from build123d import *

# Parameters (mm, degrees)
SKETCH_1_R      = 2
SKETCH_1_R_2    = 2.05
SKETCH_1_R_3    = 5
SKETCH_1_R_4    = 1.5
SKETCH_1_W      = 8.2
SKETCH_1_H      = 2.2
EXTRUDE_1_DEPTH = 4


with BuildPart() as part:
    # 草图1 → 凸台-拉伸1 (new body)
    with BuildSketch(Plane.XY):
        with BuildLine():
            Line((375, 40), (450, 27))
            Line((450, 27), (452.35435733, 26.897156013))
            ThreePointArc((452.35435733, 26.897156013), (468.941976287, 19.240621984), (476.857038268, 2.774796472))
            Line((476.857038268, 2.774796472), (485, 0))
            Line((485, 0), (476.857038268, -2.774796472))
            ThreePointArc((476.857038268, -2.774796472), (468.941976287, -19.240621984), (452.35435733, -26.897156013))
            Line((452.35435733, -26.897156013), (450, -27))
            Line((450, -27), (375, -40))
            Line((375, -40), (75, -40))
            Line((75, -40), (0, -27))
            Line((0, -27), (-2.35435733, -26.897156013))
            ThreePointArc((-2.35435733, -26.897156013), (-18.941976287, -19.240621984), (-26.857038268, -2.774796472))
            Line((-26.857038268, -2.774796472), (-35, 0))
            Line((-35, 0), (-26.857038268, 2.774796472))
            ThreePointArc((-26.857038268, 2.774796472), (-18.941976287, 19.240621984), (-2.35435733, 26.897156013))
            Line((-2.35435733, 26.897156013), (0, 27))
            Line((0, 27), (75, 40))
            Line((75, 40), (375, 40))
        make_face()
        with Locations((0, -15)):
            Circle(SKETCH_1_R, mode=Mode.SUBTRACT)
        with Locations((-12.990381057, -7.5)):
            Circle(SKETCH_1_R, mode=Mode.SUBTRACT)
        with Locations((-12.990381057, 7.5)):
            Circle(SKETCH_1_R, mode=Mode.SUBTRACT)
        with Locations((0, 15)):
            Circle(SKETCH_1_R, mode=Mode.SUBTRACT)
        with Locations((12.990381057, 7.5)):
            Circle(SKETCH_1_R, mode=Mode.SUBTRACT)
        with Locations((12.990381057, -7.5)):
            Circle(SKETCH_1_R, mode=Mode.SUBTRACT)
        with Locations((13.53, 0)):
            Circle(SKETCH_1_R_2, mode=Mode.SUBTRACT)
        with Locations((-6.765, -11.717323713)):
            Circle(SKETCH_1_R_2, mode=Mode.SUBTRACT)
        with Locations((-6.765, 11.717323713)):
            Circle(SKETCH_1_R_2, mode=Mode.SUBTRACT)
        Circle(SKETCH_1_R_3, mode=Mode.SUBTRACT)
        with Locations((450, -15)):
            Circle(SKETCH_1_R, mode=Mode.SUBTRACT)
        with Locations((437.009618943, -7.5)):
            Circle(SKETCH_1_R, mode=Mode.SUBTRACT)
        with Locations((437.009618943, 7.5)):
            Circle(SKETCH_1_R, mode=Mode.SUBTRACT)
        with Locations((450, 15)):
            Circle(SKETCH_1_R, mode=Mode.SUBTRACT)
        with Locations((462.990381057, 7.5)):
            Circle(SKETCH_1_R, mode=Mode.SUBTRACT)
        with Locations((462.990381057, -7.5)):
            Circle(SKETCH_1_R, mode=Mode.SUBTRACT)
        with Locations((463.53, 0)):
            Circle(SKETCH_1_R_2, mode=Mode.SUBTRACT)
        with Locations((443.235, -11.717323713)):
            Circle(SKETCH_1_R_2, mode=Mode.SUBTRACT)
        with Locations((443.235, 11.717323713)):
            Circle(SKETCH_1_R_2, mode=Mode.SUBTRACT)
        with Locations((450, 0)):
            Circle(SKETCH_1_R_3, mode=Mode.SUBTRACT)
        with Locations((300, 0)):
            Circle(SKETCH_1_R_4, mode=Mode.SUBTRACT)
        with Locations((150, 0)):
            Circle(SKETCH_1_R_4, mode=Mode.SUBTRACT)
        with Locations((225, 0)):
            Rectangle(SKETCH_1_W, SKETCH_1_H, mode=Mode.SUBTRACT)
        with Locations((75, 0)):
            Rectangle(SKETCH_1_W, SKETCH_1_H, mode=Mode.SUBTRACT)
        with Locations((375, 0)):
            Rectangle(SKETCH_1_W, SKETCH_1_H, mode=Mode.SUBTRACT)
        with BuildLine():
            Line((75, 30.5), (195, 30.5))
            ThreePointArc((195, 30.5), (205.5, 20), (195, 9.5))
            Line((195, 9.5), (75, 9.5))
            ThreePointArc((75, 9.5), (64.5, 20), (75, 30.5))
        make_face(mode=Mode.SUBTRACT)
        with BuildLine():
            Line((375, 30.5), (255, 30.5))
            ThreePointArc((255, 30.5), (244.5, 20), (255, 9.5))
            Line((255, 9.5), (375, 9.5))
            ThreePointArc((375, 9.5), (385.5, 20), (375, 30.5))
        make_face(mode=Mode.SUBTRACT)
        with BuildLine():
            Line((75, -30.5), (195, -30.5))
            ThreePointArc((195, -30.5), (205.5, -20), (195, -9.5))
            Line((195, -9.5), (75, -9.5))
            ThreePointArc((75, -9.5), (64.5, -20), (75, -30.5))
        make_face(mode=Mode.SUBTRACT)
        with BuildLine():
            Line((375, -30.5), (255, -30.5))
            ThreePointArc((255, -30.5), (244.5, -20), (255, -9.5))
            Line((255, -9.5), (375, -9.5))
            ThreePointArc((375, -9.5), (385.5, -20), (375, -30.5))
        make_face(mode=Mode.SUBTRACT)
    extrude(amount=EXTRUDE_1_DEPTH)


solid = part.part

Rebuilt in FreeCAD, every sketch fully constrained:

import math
import FreeCAD as App
import Part
import Sketcher
Q = App.Units.Quantity


def add_polygon(sketch, points):
    """Adds a closed chain of lines whose ends are joined by coincident constraints."""
    first, n = sketch.GeometryCount, len(points)
    for a, b in zip(points, points[1:] + points[:1]):
        sketch.addGeometry(Part.LineSegment(App.Vector(*a, 0), App.Vector(*b, 0)), False)
    for i in range(n):
        sketch.addConstraint(Sketcher.Constraint("Coincident", first + i, 2, first + (i + 1) % n, 1))

doc = App.newDocument("Part")
body = doc.addObject("PartDesign::Body", "Body")

# Sketch on XY plane
sketch1 = body.newObject("Sketcher::SketchObject", "Sketch")
sketch1.AttachmentSupport = (doc.getObject("XY_Plane"), [""])
sketch1.MapMode = "FlatFace"
sketch1.addGeometry(Part.LineSegment(App.Vector(450, 27, 0), App.Vector(375, 40, 0)), False)  # 0
sketch1.addGeometry(Part.LineSegment(App.Vector(375, 40, 0), App.Vector(75, 40, 0)), False)  # 1
sketch1.addGeometry(Part.LineSegment(App.Vector(75, 40, 0), App.Vector(0, 27, 0)), False)  # 2
sketch1.addGeometry(Part.LineSegment(App.Vector(0, 27, 0), App.Vector(-2.4, 26.9, 0)), False)  # 3
sketch1.addGeometry(Part.ArcOfCircle(Part.Circle(App.Vector(0, 0, 0), App.Vector(0, 0, 1), 27), math.radians(95), math.radians(174)), False)  # 4
sketch1.addGeometry(Part.LineSegment(App.Vector(-26.9, 2.8, 0), App.Vector(-35, 0, 0)), False)  # 5
sketch1.addGeometry(Part.LineSegment(App.Vector(-35, 0, 0), App.Vector(-26.9, -2.8, 0)), False)  # 6
sketch1.addGeometry(Part.ArcOfCircle(Part.Circle(App.Vector(0, 0, 0), App.Vector(0, 0, 1), 27), math.radians(-174), math.radians(-95)), False)  # 7
sketch1.addGeometry(Part.LineSegment(App.Vector(-2.4, -26.9, 0), App.Vector(0, -27, 0)), False)  # 8
sketch1.addGeometry(Part.LineSegment(App.Vector(0, -27, 0), App.Vector(75, -40, 0)), False)  # 9
sketch1.addGeometry(Part.LineSegment(App.Vector(75, -40, 0), App.Vector(375, -40, 0)), False)  # 10
sketch1.addGeometry(Part.LineSegment(App.Vector(375, -40, 0), App.Vector(450, -27, 0)), False)  # 11
sketch1.addGeometry(Part.LineSegment(App.Vector(450, -27, 0), App.Vector(452.4, -26.9, 0)), False)  # 12
sketch1.addGeometry(Part.ArcOfCircle(Part.Circle(App.Vector(450, 0, 0), App.Vector(0, 0, 1), 27), math.radians(-85), math.radians(-6)), False)  # 13
sketch1.addGeometry(Part.LineSegment(App.Vector(476.9, -2.8, 0), App.Vector(485, 0, 0)), False)  # 14
sketch1.addGeometry(Part.LineSegment(App.Vector(485, 0, 0), App.Vector(476.9, 2.8, 0)), False)  # 15
sketch1.addGeometry(Part.ArcOfCircle(Part.Circle(App.Vector(450, 0, 0), App.Vector(0, 0, 1), 27), math.radians(6), math.radians(85)), False)  # 16
sketch1.addGeometry(Part.LineSegment(App.Vector(452.4, 26.9, 0), App.Vector(450, 27, 0)), False)  # 17
sketch1.addGeometry(Part.LineSegment(App.Vector(375, -30.5, 0), App.Vector(255, -30.5, 0)), False)  # 18
sketch1.addGeometry(Part.ArcOfCircle(Part.Circle(App.Vector(255, -20, 0), App.Vector(0, 0, 1), 10.5), math.radians(90), math.radians(270)), False)  # 19
sketch1.addGeometry(Part.LineSegment(App.Vector(255, -9.5, 0), App.Vector(375, -9.5, 0)), False)  # 20
sketch1.addGeometry(Part.ArcOfCircle(Part.Circle(App.Vector(375, -20, 0), App.Vector(0, 0, 1), 10.5), math.radians(-90), math.radians(90)), False)  # 21
sketch1.addGeometry(Part.Circle(App.Vector(450, -15, 0), App.Vector(0, 0, 1), 2), False)  # 22
sketch1.addGeometry(Part.Circle(App.Vector(443.2, -11.7, 0), App.Vector(0, 0, 1), 2), False)  # 23
sketch1.addGeometry(Part.Circle(App.Vector(463, -7.5, 0), App.Vector(0, 0, 1), 2), False)  # 24
sketch1.addGeometry(Part.Circle(App.Vector(437, -7.5, 0), App.Vector(0, 0, 1), 2), False)  # 25
sketch1.addGeometry(Part.ArcOfCircle(Part.Circle(App.Vector(75, -20, 0), App.Vector(0, 0, 1), 10.5), math.radians(90), math.radians(270)), False)  # 26
sketch1.addGeometry(Part.LineSegment(App.Vector(75, -9.5, 0), App.Vector(195, -9.5, 0)), False)  # 27
sketch1.addGeometry(Part.ArcOfCircle(Part.Circle(App.Vector(195, -20, 0), App.Vector(0, 0, 1), 10.5), math.radians(-90), math.radians(90)), False)  # 28
sketch1.addGeometry(Part.LineSegment(App.Vector(195, -30.5, 0), App.Vector(75, -30.5, 0)), False)  # 29
sketch1.addGeometry(Part.Circle(App.Vector(0, -15, 0), App.Vector(0, 0, 1), 2), False)  # 30
sketch1.addGeometry(Part.Circle(App.Vector(-6.8, -11.7, 0), App.Vector(0, 0, 1), 2), False)  # 31
sketch1.addGeometry(Part.Circle(App.Vector(13, -7.5, 0), App.Vector(0, 0, 1), 2), False)  # 32
sketch1.addGeometry(Part.Circle(App.Vector(-13, -7.5, 0), App.Vector(0, 0, 1), 2), False)  # 33
sketch1.addGeometry(Part.Circle(App.Vector(463.5, 0, 0), App.Vector(0, 0, 1), 2), False)  # 34
sketch1.addGeometry(Part.Circle(App.Vector(450, 0, 0), App.Vector(0, 0, 1), 5), False)  # 35
sketch1.addGeometry(Part.Circle(App.Vector(463, 7.5, 0), App.Vector(0, 0, 1), 2), False)  # 36
sketch1.addGeometry(Part.Circle(App.Vector(437, 7.5, 0), App.Vector(0, 0, 1), 2), False)  # 37
add_polygon(sketch1, [(370.9, -1.1), (370.9, 1.1), (379.1, 1.1), (379.1, -1.1)])  # lines 38-41
sketch1.addGeometry(Part.Circle(App.Vector(443.2, 11.7, 0), App.Vector(0, 0, 1), 2), False)  # 42
sketch1.addGeometry(Part.Circle(App.Vector(450, 15, 0), App.Vector(0, 0, 1), 2), False)  # 43
sketch1.addGeometry(Part.Circle(App.Vector(300, 0, 0), App.Vector(0, 0, 1), 1.5), False)  # 44
sketch1.addGeometry(Part.ArcOfCircle(Part.Circle(App.Vector(375, 20, 0), App.Vector(0, 0, 1), 10.5), math.radians(-90), math.radians(90)), False)  # 45
sketch1.addGeometry(Part.LineSegment(App.Vector(375, 9.5, 0), App.Vector(255, 9.5, 0)), False)  # 46
sketch1.addGeometry(Part.ArcOfCircle(Part.Circle(App.Vector(255, 20, 0), App.Vector(0, 0, 1), 10.5), math.radians(90), math.radians(270)), False)  # 47
sketch1.addGeometry(Part.LineSegment(App.Vector(255, 30.5, 0), App.Vector(375, 30.5, 0)), False)  # 48
add_polygon(sketch1, [(220.9, -1.1), (220.9, 1.1), (229.1, 1.1), (229.1, -1.1)])  # lines 49-52
sketch1.addGeometry(Part.Circle(App.Vector(150, 0, 0), App.Vector(0, 0, 1), 1.5), False)  # 53
add_polygon(sketch1, [(70.9, -1.1), (70.9, 1.1), (79.1, 1.1), (79.1, -1.1)])  # lines 54-57
sketch1.addGeometry(Part.Circle(App.Vector(13.5, 0, 0), App.Vector(0, 0, 1), 2), False)  # 58
sketch1.addGeometry(Part.Circle(App.Vector(0, 0, 0), App.Vector(0, 0, 1), 5), False)  # 59
sketch1.addGeometry(Part.Circle(App.Vector(13, 7.5, 0), App.Vector(0, 0, 1), 2), False)  # 60
sketch1.addGeometry(Part.Circle(App.Vector(-13, 7.5, 0), App.Vector(0, 0, 1), 2), False)  # 61
sketch1.addGeometry(Part.Circle(App.Vector(-6.8, 11.7, 0), App.Vector(0, 0, 1), 2), False)  # 62
sketch1.addGeometry(Part.Circle(App.Vector(0, 15, 0), App.Vector(0, 0, 1), 2), False)  # 63
sketch1.addGeometry(Part.LineSegment(App.Vector(75, 30.5, 0), App.Vector(195, 30.5, 0)), False)  # 64
sketch1.addGeometry(Part.ArcOfCircle(Part.Circle(App.Vector(195, 20, 0), App.Vector(0, 0, 1), 10.5), math.radians(-90), math.radians(90)), False)  # 65
sketch1.addGeometry(Part.LineSegment(App.Vector(195, 9.5, 0), App.Vector(75, 9.5, 0)), False)  # 66
sketch1.addGeometry(Part.ArcOfCircle(Part.Circle(App.Vector(75, 20, 0), App.Vector(0, 0, 1), 10.5), math.radians(90), math.radians(270)), False)  # 67
sketch1.addConstraint([
    Sketcher.Constraint("Coincident", 0, 2, 1, 1),
    Sketcher.Constraint("Coincident", 1, 2, 2, 1),
    Sketcher.Constraint("Coincident", 2, 2, 3, 1),
    Sketcher.Constraint("Coincident", 3, 2, 4, 1),
    Sketcher.Constraint("Coincident", 4, 2, 5, 1),
    Sketcher.Constraint("Coincident", 5, 2, 6, 1),
    Sketcher.Constraint("Coincident", 6, 2, 7, 1),
    Sketcher.Constraint("Coincident", 7, 2, 8, 1),
    Sketcher.Constraint("Coincident", 8, 2, 9, 1),
    Sketcher.Constraint("Coincident", 9, 2, 10, 1),
    Sketcher.Constraint("Coincident", 10, 2, 11, 1),
    Sketcher.Constraint("Coincident", 11, 2, 12, 1),
    Sketcher.Constraint("Coincident", 12, 2, 13, 1),
    Sketcher.Constraint("Coincident", 13, 2, 14, 1),
    Sketcher.Constraint("Coincident", 14, 2, 15, 1),
    Sketcher.Constraint("Coincident", 15, 2, 16, 1),
    Sketcher.Constraint("Coincident", 16, 2, 17, 1),
    Sketcher.Constraint("Coincident", 17, 2, 0, 1),
    Sketcher.Constraint("Tangent", 18, 2, 19, 2),
    Sketcher.Constraint("Tangent", 19, 1, 20, 1),
    Sketcher.Constraint("Tangent", 20, 2, 21, 2),
    Sketcher.Constraint("Tangent", 21, 1, 18, 1),
    Sketcher.Constraint("Tangent", 26, 1, 27, 1),
    Sketcher.Constraint("Tangent", 27, 2, 28, 2),
    Sketcher.Constraint("Tangent", 28, 1, 29, 1),
    Sketcher.Constraint("Tangent", 29, 2, 26, 2),
    Sketcher.Constraint("Tangent", 45, 1, 46, 1),
    Sketcher.Constraint("Tangent", 46, 2, 47, 2),
    Sketcher.Constraint("Tangent", 47, 1, 48, 1),
    Sketcher.Constraint("Tangent", 48, 2, 45, 2),
    Sketcher.Constraint("Tangent", 64, 2, 65, 2),
    Sketcher.Constraint("Tangent", 65, 1, 66, 1),
    Sketcher.Constraint("Tangent", 66, 2, 67, 2),
    Sketcher.Constraint("Tangent", 67, 1, 64, 1),
    Sketcher.Constraint("Horizontal", 1),
    Sketcher.Constraint("Horizontal", 10),
    Sketcher.Constraint("Horizontal", 18),
    Sketcher.Constraint("Horizontal", 20),
    Sketcher.Constraint("Horizontal", 27),
    Sketcher.Constraint("Horizontal", 29),
    Sketcher.Constraint("Vertical", 38),
    Sketcher.Constraint("Horizontal", 39),
    Sketcher.Constraint("Vertical", 40),
    Sketcher.Constraint("Horizontal", 41),
    Sketcher.Constraint("Horizontal", 46),
    Sketcher.Constraint("Horizontal", 48),
    Sketcher.Constraint("Vertical", 49),
    Sketcher.Constraint("Horizontal", 50),
    Sketcher.Constraint("Vertical", 51),
    Sketcher.Constraint("Horizontal", 52),
    Sketcher.Constraint("Vertical", 54),
    Sketcher.Constraint("Horizontal", 55),
    Sketcher.Constraint("Vertical", 56),
    Sketcher.Constraint("Horizontal", 57),
    Sketcher.Constraint("Horizontal", 64),
    Sketcher.Constraint("Horizontal", 66),
    Sketcher.Constraint("Coincident", 4, 3, -1, 1),
    Sketcher.Constraint("Coincident", 7, 3, -1, 1),
    Sketcher.Constraint("Coincident", 59, 3, -1, 1),
    Sketcher.Constraint("Coincident", 16, 3, 13, 3),
    Sketcher.Constraint("Coincident", 35, 3, 13, 3),
    Sketcher.Constraint("Equal", 4, 7),
    Sketcher.Constraint("Equal", 7, 13),
    Sketcher.Constraint("Equal", 13, 16),
    Sketcher.Constraint("Equal", 22, 24),
    Sketcher.Constraint("Equal", 24, 25),
    Sketcher.Constraint("Equal", 21, 26),
    Sketcher.Constraint("Equal", 25, 30),
    Sketcher.Constraint("Equal", 23, 31),
    Sketcher.Constraint("Equal", 30, 32),
    Sketcher.Constraint("Equal", 32, 33),
    Sketcher.Constraint("Equal", 31, 34),
    Sketcher.Constraint("Equal", 33, 36),
    Sketcher.Constraint("Equal", 36, 37),
    Sketcher.Constraint("Equal", 34, 42),
    Sketcher.Constraint("Equal", 37, 43),
    Sketcher.Constraint("Equal", 28, 45),
    Sketcher.Constraint("Equal", 44, 53),
    Sketcher.Constraint("Equal", 42, 58),
    Sketcher.Constraint("Equal", 35, 59),
    Sketcher.Constraint("Equal", 43, 60),
    Sketcher.Constraint("Equal", 60, 61),
    Sketcher.Constraint("Equal", 58, 62),
    Sketcher.Constraint("Equal", 61, 63),
    Sketcher.Constraint("Equal", 47, 65),
    Sketcher.Constraint("Symmetric", 33, 3, 60, 3, -1, 1),
    Sketcher.Constraint("Symmetric", 32, 3, 61, 3, -1, 1),
    Sketcher.Constraint("Symmetric", 30, 3, 63, 3, -1, 1),
    Sketcher.Constraint("Symmetric", 2, 2, 8, 2, -1, 1),
    Sketcher.Constraint("Symmetric", 32, 3, 33, 3, -2),
    Sketcher.Constraint("Symmetric", 24, 3, 36, 3, -1),
    Sketcher.Constraint("Symmetric", 25, 3, 37, 3, -1),
    Sketcher.Constraint("Symmetric", 23, 3, 42, 3, -1),
    Sketcher.Constraint("Symmetric", 22, 3, 43, 3, -1),
    Sketcher.Constraint("Symmetric", 21, 3, 45, 3, -1),
    Sketcher.Constraint("Symmetric", 31, 3, 62, 3, -1),
    Sketcher.Constraint("Symmetric", 28, 3, 65, 3, -1),
    Sketcher.Constraint("Symmetric", 1, 2, 9, 2, -1),
    Sketcher.Constraint("Symmetric", 13, 2, 15, 2, -1),
    Sketcher.Constraint("Symmetric", 11, 2, 17, 2, -1),
    Sketcher.Constraint("PointOnObject", 30, 3, -2),
    Sketcher.Constraint("PointOnObject", 34, 3, -1),
    Sketcher.Constraint("PointOnObject", 44, 3, -1),
    Sketcher.Constraint("PointOnObject", 53, 3, -1),
    Sketcher.Constraint("PointOnObject", 58, 3, -1),
    Sketcher.Constraint("PointOnObject", 2, 2, -2),
    Sketcher.Constraint("PointOnObject", 5, 2, -1),
    Sketcher.Constraint("PointOnObject", 14, 2, -1),
    Sketcher.Constraint("Parallel", 0, 9),
    Sketcher.Constraint("Parallel", 2, 11),
    Sketcher.Constraint("Parallel", 3, 12),
    Sketcher.Constraint("Parallel", 5, 14),
    Sketcher.Constraint("Parallel", 6, 15),
    Sketcher.Constraint("Parallel", 8, 17),
    Sketcher.Constraint("Horizontal", 24, 3, 25, 3),
    Sketcher.Constraint("Horizontal", 21, 3, 26, 3),
    Sketcher.Constraint("Horizontal", 22, 3, 30, 3),
    Sketcher.Constraint("Horizontal", 23, 3, 31, 3),
    Sketcher.Constraint("Horizontal", 25, 3, 32, 3),
    Sketcher.Constraint("Horizontal", 8, 2, 11, 2),
    Sketcher.Constraint("Horizontal", 7, 2, 12, 2),
    Sketcher.Constraint("Horizontal", 6, 2, 13, 2),
    Sketcher.Constraint("Horizontal", 3, 2, 16, 2),
    Sketcher.Constraint("Horizontal", 39, 2, 49, 2),
    Sketcher.Constraint("Horizontal", 41, 2, 51, 2),
    Sketcher.Constraint("Horizontal", 50, 2, 54, 2),
    Sketcher.Constraint("Horizontal", 52, 2, 56, 2),
    Sketcher.Constraint("Vertical", 16, 3, 22, 3),
    Sketcher.Constraint("Vertical", 19, 3, 47, 3),
    Sketcher.Constraint("Vertical", 26, 3, 67, 3),
    Sketcher.Constraint("Vertical", 45, 3, 0, 2),
    Sketcher.Constraint("Vertical", 67, 3, 1, 2),
    Sketcher.Constraint("Equal", 20, 27),
    Sketcher.Constraint("Equal", 41, 50),
    Sketcher.Constraint("Equal", 52, 55),
    Sketcher.Constraint("Diameter", 22, Q("4 mm")),
    Sketcher.Constraint("Diameter", 35, Q("10 mm")),
    Sketcher.Constraint("Diameter", 44, Q("3 mm")),
    Sketcher.Constraint("Radius", 4, Q("27 mm")),
    Sketcher.Constraint("Diameter", 23, Q("4.1 mm")),
    Sketcher.Constraint("Radius", 19, Q("10.5 mm")),
    Sketcher.Constraint("DistanceX", 1, 2, 1, 1, Q("300 mm")),
    Sketcher.Constraint("DistanceX", 18, 2, 18, 1, Q("120 mm")),
    Sketcher.Constraint("DistanceX", 39, 1, 39, 2, Q("8.2 mm")),
    Sketcher.Constraint("DistanceY", 38, 1, 38, 2, Q("2.2 mm")),
    Sketcher.Constraint("DistanceX", -1, 1, 13, 3, Q("450 mm")),
    Sketcher.Constraint("DistanceY", 19, 3, -1, 1, Q("20 mm")),
    Sketcher.Constraint("DistanceY", 22, 3, -1, 1, Q("15 mm")),
    Sketcher.Constraint("DistanceX", -1, 1, 44, 3, Q("300 mm")),
    Sketcher.Constraint("DistanceX", -1, 1, 53, 3, Q("150 mm")),
    Sketcher.Constraint("DistanceY", -1, 1, 0, 2, Q("40 mm")),
    Sketcher.Constraint("DistanceY", -1, 1, 2, 2, Q("27 mm")),
    Sketcher.Constraint("DistanceX", 5, 2, -1, 1, Q("35 mm")),
    Sketcher.Constraint("DistanceY", 24, 3, -1, 1, Q("7.5 mm")),
    Sketcher.Constraint("DistanceX", -1, 1, 38, 2, Q("370.9 mm")),
    Sketcher.Constraint("DistanceY", -1, 1, 38, 2, Q("1.1 mm")),
    Sketcher.Constraint("DistanceX", -1, 1, 49, 2, Q("220.9 mm")),
    Sketcher.Constraint("DistanceX", -1, 1, 54, 2, Q("70.9 mm")),
    Sketcher.Constraint("DistanceX", -1, 1, 34, 3, Q("463.53 mm")),
    Sketcher.Constraint("DistanceX", -1, 1, 58, 3, Q("13.53 mm")),
    Sketcher.Constraint("DistanceX", -1, 1, 23, 3, Q("443.235 mm")),
    Sketcher.Constraint("DistanceX", 31, 3, -1, 1, Q("6.765 mm")),
    Sketcher.Constraint("Distance", 5, Q("8.602751 mm")),
    Sketcher.Constraint("DistanceX", -1, 1, 24, 3, Q("462.990381 mm")),
    Sketcher.Constraint("DistanceX", -1, 1, 25, 3, Q("437.009619 mm")),
    Sketcher.Constraint("DistanceX", -1, 1, 32, 3, Q("12.990381 mm")),
    Sketcher.Constraint("Distance", 3, Q("2.356602 mm")),
    Sketcher.Constraint("DistanceY", 23, 3, -1, 1, Q("11.717324 mm")),
])
pad1 = body.newObject("PartDesign::Pad", "Pad")
pad1.Profile = sketch1
pad1.Length = 4

doc.recompute()
